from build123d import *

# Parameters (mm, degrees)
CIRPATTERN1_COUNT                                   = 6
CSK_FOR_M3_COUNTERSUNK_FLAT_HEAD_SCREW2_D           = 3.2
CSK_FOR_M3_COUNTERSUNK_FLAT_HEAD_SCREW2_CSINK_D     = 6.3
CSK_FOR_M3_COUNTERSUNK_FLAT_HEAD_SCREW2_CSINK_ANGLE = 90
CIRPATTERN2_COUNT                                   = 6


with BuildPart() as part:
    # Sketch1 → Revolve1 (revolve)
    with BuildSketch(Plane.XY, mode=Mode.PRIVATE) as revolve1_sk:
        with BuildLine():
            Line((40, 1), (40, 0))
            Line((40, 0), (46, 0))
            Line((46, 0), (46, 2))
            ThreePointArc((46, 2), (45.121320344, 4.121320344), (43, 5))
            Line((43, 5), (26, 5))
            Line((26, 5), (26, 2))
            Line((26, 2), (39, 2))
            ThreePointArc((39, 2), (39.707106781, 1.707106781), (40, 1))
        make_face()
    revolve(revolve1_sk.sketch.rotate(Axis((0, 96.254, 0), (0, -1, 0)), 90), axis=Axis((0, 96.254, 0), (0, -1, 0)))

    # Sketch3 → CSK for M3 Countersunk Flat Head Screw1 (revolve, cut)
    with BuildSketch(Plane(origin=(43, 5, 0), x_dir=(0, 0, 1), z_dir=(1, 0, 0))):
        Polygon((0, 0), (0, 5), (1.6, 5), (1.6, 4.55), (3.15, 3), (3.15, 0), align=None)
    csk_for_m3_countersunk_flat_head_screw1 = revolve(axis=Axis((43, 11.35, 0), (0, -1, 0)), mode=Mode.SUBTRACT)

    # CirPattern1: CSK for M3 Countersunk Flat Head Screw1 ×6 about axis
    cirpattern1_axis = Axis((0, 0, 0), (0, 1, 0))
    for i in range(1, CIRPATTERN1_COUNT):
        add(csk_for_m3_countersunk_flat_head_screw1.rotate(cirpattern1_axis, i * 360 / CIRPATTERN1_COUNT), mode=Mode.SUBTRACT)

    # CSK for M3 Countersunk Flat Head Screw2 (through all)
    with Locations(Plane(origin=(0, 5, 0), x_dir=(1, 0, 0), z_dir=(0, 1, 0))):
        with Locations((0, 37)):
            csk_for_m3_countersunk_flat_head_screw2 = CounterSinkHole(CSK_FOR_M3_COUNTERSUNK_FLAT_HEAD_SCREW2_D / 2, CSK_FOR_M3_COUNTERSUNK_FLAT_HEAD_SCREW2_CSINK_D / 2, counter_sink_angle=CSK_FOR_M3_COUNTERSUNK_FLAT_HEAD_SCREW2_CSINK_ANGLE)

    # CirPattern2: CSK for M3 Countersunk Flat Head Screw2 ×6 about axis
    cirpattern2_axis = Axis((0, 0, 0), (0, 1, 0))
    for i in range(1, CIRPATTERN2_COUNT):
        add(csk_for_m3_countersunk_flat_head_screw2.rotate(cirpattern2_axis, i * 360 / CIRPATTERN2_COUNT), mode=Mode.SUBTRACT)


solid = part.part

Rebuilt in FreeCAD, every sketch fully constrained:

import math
import FreeCAD as App
import Part
import Sketcher

V = App.Vector
Q = App.Units.Quantity


def add_polygon(sketch, points):
    """Adds a closed chain of lines whose ends are joined by coincident constraints."""
    first, n = sketch.GeometryCount, len(points)
    for a, b in zip(points, points[1:] + points[:1]):
        sketch.addGeometry(Part.LineSegment(App.Vector(*a, 0), App.Vector(*b, 0)), False)
    for i in range(n):
        sketch.addConstraint(Sketcher.Constraint("Coincident", first + i, 2, first + (i + 1) % n, 1))

doc = App.newDocument("Part")
body = doc.addObject("PartDesign::Body", "Body")

# Sketch on XY plane
sketch1 = body.newObject("Sketcher::SketchObject", "Sketch")
sketch1.AttachmentSupport = (doc.getObject("XY_Plane"), [""])
sketch1.MapMode = "FlatFace"
sketch1.addGeometry([
    Part.LineSegment(V(40, 1, 0), V(40, 0, 0)),  # 0
    Part.LineSegment(V(40, 0, 0), V(46, 0, 0)),  # 1
    Part.LineSegment(V(46, 0, 0), V(46, 2, 0)),  # 2
    Part.ArcOfCircle(Part.Circle(V(43, 2, 0), V(0, 0, 1), 3), math.radians(0), math.radians(90)),  # 3
    Part.LineSegment(V(43, 5, 0), V(26, 5, 0)),  # 4
    Part.LineSegment(V(26, 5, 0), V(26, 2, 0)),  # 5
    Part.LineSegment(V(26, 2, 0), V(39, 2, 0)),  # 6
    Part.ArcOfCircle(Part.Circle(V(39, 1, 0), V(0, 0, 1), 1), math.radians(0), math.radians(90)),  # 7
], False)
sketch1.addConstraint([
    Sketcher.Constraint("Coincident", 0, 2, 1, 1),
    Sketcher.Constraint("Coincident", 1, 2, 2, 1),
    Sketcher.Constraint("Tangent", 2, 2, 3, 1),
    Sketcher.Constraint("Tangent", 3, 2, 4, 1),
    Sketcher.Constraint("Coincident", 4, 2, 5, 1),
    Sketcher.Constraint("Coincident", 5, 2, 6, 1),
    Sketcher.Constraint("Tangent", 6, 2, 7, 2),
    Sketcher.Constraint("Tangent", 7, 1, 0, 1),
    Sketcher.Constraint("Vertical", 0),
    Sketcher.Constraint("Horizontal", 1),
    Sketcher.Constraint("Vertical", 2),
    Sketcher.Constraint("Horizontal", 4),
    Sketcher.Constraint("Vertical", 5),
    Sketcher.Constraint("Horizontal", 6),
    Sketcher.Constraint("PointOnObject", 0, 2, -1),
    Sketcher.Constraint("Horizontal", 2, 2, 5, 2),
    Sketcher.Constraint("Radius", 3, Q("3 mm")),
    Sketcher.Constraint("Radius", 7, Q("1 mm")),
    Sketcher.Constraint("DistanceX", 1, 1, 1, 2, Q("6 mm")),
    Sketcher.Constraint("DistanceX", 4, 2, 4, 1, Q("17 mm")),
    Sketcher.Constraint("DistanceY", 0, 2, 0, 1, Q("1 mm")),
    Sketcher.Constraint("DistanceX", -1, 1, 3, 3, Q("43 mm")),
])
revolution = body.newObject("PartDesign::Revolution", "Revolution")
revolution.Profile = sketch1
revolution.ReferenceAxis = (sketch1, ["V_Axis"])
revolution.Angle = 360

# Sketch on YZ plane
sketch2 = body.newObject("Sketcher::SketchObject", "Sketch001")
sketch2.AttachmentSupport = (doc.getObject("YZ_Plane"), [""])
sketch2.MapMode = "FlatFace"
sketch2.AttachmentOffset = App.Placement(V(0, 0, 43), App.Rotation())
add_polygon(sketch2, [(0, 0), (5, 0), (5, 3.15), (2, 3.15), (0.45, 1.6), (0, 1.6)])  # lines 0-5
sketch2.addConstraint([
    Sketcher.Constraint("Horizontal", 0),
    Sketcher.Constraint("Vertical", 1),
    Sketcher.Constraint("Horizontal", 2),
    Sketcher.Constraint("Horizontal", 4),
    Sketcher.Constraint("Vertical", 5),
    Sketcher.Constraint("Coincident", 5, 2, -1, 1),
    Sketcher.Constraint("DistanceX", 0, 1, 0, 2, Q("5 mm")),
    Sketcher.Constraint("DistanceX", 2, 2, 2, 1, Q("3 mm")),
    Sketcher.Constraint("Angle", 3, Q("-135 deg")),
    Sketcher.Constraint("DistanceY", 5, 2, 5, 1, Q("1.6 mm")),
    Sketcher.Constraint("DistanceX", 4, 2, 4, 1, Q("0.45 mm")),
])
groove = body.newObject("PartDesign::Groove", "Groove")
groove.Profile = sketch2
groove.ReferenceAxis = (sketch2, ["H_Axis"])
groove.Angle = 360
doc.recompute()

polarpattern = body.newObject("PartDesign::PolarPattern", "PolarPattern")
polarpattern.Originals = [groove]
polarpattern.Axis = (doc.getObject("Y_Axis"), [""])
polarpattern.Angle = 360
polarpattern.Occurrences = 6
body.Tip = polarpattern

# Sketch on XZ plane
sketch3 = body.newObject("Sketcher::SketchObject", "Sketch002")
sketch3.AttachmentSupport = (doc.getObject("XZ_Plane"), [""])
sketch3.MapMode = "FlatFace"
sketch3.AttachmentOffset = App.Placement(V(0, 0, -5), App.Rotation())
sketch3.addGeometry(Part.Circle(V(0, -37, 0), V(0, 0, 1), 1.6), False)
sketch3.addConstraint([
    Sketcher.Constraint("PointOnObject", 0, 3, -2),
    Sketcher.Constraint("Diameter", 0, Q("3.2 mm")),
    Sketcher.Constraint("DistanceY", 0, 3, -1, 1, Q("37 mm")),
])
doc.recompute()
hole = body.newObject("PartDesign::Hole", "Hole")
hole.Profile = sketch3
hole.ThreadType = "None"
hole.Diameter = 3.2
hole.DepthType = "ThroughAll"
hole.HoleCutType = "Countersink"
hole.HoleCutDiameter = 6.3
hole.HoleCutCountersinkAngle = 90
hole.Reversed = True
doc.recompute()

polarpattern2 = body.newObject("PartDesign::PolarPattern", "PolarPattern001")
polarpattern2.Originals = [hole]
polarpattern2.Axis = (doc.getObject("Y_Axis"), [""])
polarpattern2.Angle = 360
polarpattern2.Occurrences = 6
body.Tip = polarpattern2

doc.recompute()
